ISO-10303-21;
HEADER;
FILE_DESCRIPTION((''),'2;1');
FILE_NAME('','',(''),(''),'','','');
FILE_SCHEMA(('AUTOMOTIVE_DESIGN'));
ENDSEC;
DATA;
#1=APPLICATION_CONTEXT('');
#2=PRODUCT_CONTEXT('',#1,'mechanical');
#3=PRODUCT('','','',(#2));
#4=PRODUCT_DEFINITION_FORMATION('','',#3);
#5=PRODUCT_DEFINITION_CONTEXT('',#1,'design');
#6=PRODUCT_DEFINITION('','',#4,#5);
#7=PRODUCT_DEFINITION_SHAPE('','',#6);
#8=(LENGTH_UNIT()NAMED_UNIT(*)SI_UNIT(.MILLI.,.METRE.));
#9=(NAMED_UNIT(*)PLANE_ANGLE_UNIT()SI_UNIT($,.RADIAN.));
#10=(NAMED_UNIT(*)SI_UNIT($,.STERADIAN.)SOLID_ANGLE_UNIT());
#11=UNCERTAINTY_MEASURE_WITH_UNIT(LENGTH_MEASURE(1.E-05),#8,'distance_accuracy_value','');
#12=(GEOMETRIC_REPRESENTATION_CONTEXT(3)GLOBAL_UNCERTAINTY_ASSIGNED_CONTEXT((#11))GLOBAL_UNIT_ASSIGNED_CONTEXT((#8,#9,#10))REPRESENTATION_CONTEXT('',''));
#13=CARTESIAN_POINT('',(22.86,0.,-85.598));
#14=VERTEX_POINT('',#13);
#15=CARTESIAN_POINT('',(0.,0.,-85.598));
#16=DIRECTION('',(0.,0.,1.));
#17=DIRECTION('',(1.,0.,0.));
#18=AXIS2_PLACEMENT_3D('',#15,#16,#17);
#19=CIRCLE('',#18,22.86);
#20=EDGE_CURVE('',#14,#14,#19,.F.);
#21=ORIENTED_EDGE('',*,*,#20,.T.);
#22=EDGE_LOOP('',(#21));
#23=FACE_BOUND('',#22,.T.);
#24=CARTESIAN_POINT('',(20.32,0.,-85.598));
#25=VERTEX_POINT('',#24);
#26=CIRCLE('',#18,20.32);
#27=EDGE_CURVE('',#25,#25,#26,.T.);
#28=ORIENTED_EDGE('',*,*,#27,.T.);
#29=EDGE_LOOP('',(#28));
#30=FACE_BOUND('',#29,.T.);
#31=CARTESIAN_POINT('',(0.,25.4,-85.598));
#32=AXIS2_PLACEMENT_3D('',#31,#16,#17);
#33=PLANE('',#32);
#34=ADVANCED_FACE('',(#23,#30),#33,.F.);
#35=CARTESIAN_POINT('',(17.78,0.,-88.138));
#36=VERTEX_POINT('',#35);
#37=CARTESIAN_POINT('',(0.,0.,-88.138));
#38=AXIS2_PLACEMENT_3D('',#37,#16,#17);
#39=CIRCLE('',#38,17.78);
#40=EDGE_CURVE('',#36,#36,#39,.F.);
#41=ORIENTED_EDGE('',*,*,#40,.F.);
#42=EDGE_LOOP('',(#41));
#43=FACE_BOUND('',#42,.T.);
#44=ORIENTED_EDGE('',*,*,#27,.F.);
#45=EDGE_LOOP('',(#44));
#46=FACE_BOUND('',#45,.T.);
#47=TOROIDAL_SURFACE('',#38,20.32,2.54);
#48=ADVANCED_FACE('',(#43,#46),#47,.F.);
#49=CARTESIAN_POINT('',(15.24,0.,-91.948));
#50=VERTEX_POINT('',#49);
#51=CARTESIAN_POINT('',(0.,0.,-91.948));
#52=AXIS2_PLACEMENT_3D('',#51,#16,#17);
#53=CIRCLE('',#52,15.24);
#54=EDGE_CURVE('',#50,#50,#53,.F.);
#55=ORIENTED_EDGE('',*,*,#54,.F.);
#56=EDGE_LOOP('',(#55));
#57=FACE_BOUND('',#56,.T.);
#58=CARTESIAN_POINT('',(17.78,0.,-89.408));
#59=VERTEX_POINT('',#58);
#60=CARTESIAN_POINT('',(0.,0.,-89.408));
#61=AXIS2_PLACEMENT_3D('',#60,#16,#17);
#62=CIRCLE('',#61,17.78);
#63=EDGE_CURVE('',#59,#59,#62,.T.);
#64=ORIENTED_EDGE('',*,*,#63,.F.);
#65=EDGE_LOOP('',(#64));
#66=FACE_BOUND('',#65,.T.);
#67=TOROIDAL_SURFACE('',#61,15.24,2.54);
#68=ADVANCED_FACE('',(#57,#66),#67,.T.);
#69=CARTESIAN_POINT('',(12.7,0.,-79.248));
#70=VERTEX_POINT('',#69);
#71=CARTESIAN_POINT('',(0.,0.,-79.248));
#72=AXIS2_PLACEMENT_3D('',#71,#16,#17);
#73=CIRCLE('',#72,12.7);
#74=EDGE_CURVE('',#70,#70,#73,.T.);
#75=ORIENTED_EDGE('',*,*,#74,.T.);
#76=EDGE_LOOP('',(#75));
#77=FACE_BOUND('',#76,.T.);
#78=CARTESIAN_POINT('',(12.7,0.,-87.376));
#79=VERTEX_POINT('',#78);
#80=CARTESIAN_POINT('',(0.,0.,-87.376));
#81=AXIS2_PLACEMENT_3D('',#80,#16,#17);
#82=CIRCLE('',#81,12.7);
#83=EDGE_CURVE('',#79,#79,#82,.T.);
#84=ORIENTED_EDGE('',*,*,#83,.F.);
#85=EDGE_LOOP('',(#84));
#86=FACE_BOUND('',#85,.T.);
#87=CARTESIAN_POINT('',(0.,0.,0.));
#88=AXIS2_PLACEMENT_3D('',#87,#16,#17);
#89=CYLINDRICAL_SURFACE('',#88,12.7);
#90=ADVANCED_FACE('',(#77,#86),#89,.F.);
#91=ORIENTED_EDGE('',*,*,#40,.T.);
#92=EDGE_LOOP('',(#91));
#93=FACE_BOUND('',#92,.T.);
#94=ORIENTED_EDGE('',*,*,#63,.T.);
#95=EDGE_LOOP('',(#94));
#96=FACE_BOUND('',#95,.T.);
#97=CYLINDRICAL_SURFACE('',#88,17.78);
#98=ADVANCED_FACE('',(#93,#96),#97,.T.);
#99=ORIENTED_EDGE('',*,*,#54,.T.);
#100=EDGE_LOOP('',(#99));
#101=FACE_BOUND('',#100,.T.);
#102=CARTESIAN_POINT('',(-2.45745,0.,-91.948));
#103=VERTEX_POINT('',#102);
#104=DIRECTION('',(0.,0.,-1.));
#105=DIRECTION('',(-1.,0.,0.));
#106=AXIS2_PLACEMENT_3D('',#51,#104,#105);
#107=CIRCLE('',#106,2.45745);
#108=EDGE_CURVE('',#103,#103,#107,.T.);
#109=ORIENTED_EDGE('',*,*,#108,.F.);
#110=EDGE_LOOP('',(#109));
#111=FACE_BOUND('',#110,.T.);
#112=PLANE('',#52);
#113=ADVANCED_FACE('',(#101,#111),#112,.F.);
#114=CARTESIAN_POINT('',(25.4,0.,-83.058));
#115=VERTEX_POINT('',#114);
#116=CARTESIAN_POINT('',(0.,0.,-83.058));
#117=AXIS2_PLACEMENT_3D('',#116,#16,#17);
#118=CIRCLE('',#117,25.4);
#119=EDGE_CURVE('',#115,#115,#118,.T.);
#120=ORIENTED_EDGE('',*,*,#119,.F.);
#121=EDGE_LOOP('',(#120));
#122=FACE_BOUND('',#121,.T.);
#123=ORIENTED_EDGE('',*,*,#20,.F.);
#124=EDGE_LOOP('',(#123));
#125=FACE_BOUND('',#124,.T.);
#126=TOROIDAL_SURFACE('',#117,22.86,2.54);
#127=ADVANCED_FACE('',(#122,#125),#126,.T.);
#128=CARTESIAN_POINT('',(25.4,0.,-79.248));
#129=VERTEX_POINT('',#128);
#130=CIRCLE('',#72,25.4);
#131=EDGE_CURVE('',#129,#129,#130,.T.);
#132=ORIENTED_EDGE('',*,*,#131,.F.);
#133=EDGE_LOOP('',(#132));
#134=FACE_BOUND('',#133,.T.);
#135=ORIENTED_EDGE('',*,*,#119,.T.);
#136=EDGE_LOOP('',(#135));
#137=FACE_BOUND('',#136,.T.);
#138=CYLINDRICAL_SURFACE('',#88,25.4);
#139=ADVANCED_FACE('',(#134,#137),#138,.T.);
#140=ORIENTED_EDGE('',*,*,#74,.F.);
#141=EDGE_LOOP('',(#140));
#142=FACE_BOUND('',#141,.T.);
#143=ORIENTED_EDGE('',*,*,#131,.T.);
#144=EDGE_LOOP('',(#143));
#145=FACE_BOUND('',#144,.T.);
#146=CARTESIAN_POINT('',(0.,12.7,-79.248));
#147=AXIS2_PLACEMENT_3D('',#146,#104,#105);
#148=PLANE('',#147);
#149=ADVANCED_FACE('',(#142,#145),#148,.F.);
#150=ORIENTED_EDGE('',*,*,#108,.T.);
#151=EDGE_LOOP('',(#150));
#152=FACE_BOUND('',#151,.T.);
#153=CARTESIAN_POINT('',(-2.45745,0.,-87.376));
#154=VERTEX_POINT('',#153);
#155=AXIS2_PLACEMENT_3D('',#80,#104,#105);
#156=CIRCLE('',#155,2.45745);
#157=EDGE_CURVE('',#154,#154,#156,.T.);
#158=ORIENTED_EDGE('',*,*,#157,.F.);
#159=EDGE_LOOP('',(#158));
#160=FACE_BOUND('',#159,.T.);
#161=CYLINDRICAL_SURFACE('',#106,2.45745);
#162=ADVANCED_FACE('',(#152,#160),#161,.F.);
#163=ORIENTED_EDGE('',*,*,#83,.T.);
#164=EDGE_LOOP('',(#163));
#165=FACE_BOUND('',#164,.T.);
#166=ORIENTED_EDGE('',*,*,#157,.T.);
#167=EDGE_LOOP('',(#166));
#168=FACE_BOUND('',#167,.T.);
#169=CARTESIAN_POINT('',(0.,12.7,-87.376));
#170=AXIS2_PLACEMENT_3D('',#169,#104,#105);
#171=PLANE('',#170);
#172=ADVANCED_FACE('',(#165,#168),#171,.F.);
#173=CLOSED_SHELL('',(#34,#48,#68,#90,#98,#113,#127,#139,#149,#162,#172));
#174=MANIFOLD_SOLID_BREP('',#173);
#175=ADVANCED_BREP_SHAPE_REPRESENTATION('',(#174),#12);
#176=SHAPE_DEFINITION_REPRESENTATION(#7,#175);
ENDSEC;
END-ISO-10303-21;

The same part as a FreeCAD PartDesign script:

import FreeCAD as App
import Part
import Sketcher
from FreeCAD import Vector
Q = App.Units.Quantity


def edges_at(feature, points):
    """Names of the edges that pass closest to the given points."""
    edges = feature.Shape.Edges
    near = lambda p: min(range(len(edges)), key=lambda i: edges[i].distToShape(Part.Vertex(*p))[0])
    return sorted({f"Edge{near(p) + 1}" for p in points})

doc = App.newDocument("Part")
body = doc.addObject("PartDesign::Body", "Body")

sketch1 = body.newObject("Sketcher::SketchObject", "Sketch")
sketch1.AttachmentSupport = (doc.getObject("YZ_Plane"), [""])
sketch1.MapMode = "FlatFace"
sketch1.addGeometry(Part.LineSegment(Vector(25.4, -79.2, 0), Vector(12.7, -79.2, 0)), False)
sketch1.addGeometry(Part.LineSegment(Vector(12.7, -79.2, 0), Vector(12.7, -87.4, 0)), False)
sketch1.addGeometry(Part.LineSegment(Vector(12.7, -87.4, 0), Vector(0, -87.4, 0)), False)
sketch1.addGeometry(Part.LineSegment(Vector(0, -87.4, 0), Vector(0, -91.9, 0)), False)
sketch1.addGeometry(Part.LineSegment(Vector(0, -91.9, 0), Vector(17.8, -91.9, 0)), False)
sketch1.addGeometry(Part.LineSegment(Vector(17.8, -91.9, 0), Vector(17.8, -85.6, 0)), False)
sketch1.addGeometry(Part.LineSegment(Vector(17.8, -85.6, 0), Vector(25.4, -85.6, 0)), False)
sketch1.addGeometry(Part.LineSegment(Vector(25.4, -85.6, 0), Vector(25.4, -79.2, 0)), False)
sketch1.addConstraint(Sketcher.Constraint("Coincident", 0, 2, 1, 1))
sketch1.addConstraint(Sketcher.Constraint("Coincident", 1, 2, 2, 1))
sketch1.addConstraint(Sketcher.Constraint("Coincident", 2, 2, 3, 1))
sketch1.addConstraint(Sketcher.Constraint("Coincident", 3, 2, 4, 1))
sketch1.addConstraint(Sketcher.Constraint("Coincident", 4, 2, 5, 1))
sketch1.addConstraint(Sketcher.Constraint("Coincident", 5, 2, 6, 1))
sketch1.addConstraint(Sketcher.Constraint("Coincident", 6, 2, 7, 1))
sketch1.addConstraint(Sketcher.Constraint("Coincident", 7, 2, 0, 1))
sketch1.addConstraint(Sketcher.Constraint("Horizontal", 0))
sketch1.addConstraint(Sketcher.Constraint("Vertical", 1))
sketch1.addConstraint(Sketcher.Constraint("Horizontal", 2))
sketch1.addConstraint(Sketcher.Constraint("Vertical", 3))
sketch1.addConstraint(Sketcher.Constraint("Horizontal", 4))
sketch1.addConstraint(Sketcher.Constraint("Vertical", 5))
sketch1.addConstraint(Sketcher.Constraint("Horizontal", 6))
sketch1.addConstraint(Sketcher.Constraint("Vertical", 7))
sketch1.addConstraint(Sketcher.Constraint("PointOnObject", 2, 2, -2))
sketch1.addConstraint(Sketcher.Constraint("Equal", 0, 2))
sketch1.addConstraint(Sketcher.Constraint("Equal", 5, 7))
sketch1.addConstraint(Sketcher.Constraint("DistanceX", 0, 2, 0, 1, Q("0.5 in")))
sketch1.addConstraint(Sketcher.Constraint("DistanceX", 4, 1, 4, 2, Q("0.7 in")))
sketch1.addConstraint(Sketcher.Constraint("DistanceY", 1, 2, 1, 1, Q("0.32 in")))
sketch1.addConstraint(Sketcher.Constraint("DistanceY", 3, 2, 3, 1, Q("0.18 in")))
sketch1.addConstraint(Sketcher.Constraint("DistanceY", 0, 2, -1, 1, Q("3.12 in")))
revolution = body.newObject("PartDesign::Revolution", "Revolution")
revolution.Profile = sketch1
revolution.ReferenceAxis = (sketch1, ["V_Axis"])
revolution.Angle = 360
doc.recompute()

fillet = body.newObject("PartDesign::Fillet", "Fillet")
fillet.Base = (revolution, edges_at(revolution, [(-17.78, 0, -91.948), (-17.78, 0, -85.598), (-25.4, 0, -85.598)]))
fillet.Radius = Q("0.1 in")

sketch2 = body.newObject("Sketcher::SketchObject", "Sketch001")
sketch2.AttachmentSupport = (doc.getObject("XY_Plane"), [""])
sketch2.MapMode = "FlatFace"
sketch2.AttachmentOffset = App.Placement(Vector(0, 0, -3.62 * 25.4), App.Rotation())
sketch2.addGeometry(Part.Circle(Vector(0, 0, 0), Vector(0, 0, 1), 2.5), False)
sketch2.addConstraint(Sketcher.Constraint("Coincident", 0, 3, -1, 1))
sketch2.addConstraint(Sketcher.Constraint("Diameter", 0, Q("0.1935 in")))
doc.recompute()
hole = body.newObject("PartDesign::Hole", "Hole")
hole.Profile = sketch2
hole.ThreadType = "None"
hole.Diameter = Q("0.1935 in")
hole.DepthType = "Dimension"
hole.Depth = Q("0.4 in")
hole.DrillPoint = "Angled"
hole.DrillPointAngle = 118
hole.Reversed = True

doc.recompute()
